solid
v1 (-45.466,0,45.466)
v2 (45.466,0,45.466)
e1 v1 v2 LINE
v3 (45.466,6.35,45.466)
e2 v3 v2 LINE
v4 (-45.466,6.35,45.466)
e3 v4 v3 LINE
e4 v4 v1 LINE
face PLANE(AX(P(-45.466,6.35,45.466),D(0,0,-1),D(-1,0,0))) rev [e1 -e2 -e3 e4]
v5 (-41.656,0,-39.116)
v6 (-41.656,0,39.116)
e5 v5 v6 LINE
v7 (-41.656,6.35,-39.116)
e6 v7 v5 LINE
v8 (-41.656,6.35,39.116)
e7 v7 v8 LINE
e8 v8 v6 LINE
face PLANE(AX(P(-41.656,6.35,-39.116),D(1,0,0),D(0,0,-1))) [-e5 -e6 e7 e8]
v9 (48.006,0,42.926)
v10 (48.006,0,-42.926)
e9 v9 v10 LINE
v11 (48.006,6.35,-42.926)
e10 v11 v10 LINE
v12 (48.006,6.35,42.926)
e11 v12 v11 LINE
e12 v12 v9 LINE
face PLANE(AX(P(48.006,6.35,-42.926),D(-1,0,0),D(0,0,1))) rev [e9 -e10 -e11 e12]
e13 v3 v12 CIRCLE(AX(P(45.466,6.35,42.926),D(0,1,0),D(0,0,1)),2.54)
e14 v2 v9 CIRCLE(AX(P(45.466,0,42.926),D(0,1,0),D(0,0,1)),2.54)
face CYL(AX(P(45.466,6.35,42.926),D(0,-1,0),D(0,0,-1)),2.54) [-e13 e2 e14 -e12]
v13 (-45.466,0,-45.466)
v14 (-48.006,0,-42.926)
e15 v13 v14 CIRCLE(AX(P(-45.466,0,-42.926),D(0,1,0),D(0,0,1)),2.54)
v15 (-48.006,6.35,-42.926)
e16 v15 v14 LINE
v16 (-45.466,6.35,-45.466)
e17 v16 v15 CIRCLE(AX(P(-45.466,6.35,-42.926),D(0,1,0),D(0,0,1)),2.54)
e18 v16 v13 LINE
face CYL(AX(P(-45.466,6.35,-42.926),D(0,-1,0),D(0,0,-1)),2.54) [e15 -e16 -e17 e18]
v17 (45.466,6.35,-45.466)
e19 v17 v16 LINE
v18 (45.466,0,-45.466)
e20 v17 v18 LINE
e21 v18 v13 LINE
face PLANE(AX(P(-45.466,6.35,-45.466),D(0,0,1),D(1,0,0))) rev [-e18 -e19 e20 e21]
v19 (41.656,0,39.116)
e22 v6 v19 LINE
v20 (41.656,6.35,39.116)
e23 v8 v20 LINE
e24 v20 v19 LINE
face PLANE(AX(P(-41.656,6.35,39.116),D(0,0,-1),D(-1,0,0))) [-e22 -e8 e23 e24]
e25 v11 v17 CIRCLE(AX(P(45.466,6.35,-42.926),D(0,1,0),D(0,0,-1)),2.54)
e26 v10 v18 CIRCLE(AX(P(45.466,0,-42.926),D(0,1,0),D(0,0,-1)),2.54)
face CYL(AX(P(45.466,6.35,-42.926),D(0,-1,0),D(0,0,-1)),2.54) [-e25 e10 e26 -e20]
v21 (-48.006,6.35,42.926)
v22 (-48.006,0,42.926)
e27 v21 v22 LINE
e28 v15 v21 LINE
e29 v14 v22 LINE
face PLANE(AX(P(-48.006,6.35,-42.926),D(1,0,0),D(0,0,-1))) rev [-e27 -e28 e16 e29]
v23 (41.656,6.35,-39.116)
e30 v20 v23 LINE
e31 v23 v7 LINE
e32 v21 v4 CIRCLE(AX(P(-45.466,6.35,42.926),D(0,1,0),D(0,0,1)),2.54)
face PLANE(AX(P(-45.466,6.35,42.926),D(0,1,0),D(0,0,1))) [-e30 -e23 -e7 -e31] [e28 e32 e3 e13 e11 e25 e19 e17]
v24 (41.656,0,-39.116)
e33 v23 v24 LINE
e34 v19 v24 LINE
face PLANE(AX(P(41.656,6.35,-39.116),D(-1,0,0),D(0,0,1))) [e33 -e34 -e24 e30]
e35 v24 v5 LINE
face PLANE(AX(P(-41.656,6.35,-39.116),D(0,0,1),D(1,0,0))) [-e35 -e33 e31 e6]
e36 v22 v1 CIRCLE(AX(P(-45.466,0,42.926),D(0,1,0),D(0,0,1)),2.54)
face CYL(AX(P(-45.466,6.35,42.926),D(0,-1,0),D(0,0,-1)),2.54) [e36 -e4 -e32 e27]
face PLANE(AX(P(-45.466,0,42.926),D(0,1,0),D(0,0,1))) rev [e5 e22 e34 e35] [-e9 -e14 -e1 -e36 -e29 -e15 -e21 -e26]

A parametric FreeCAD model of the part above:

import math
import FreeCAD as App
import Part
import Sketcher
from FreeCAD import Vector
Q = App.Units.Quantity


def add_polygon(sketch, points):
    """Adds a closed chain of lines whose ends are joined by coincident constraints."""
    first, n = sketch.GeometryCount, len(points)
    for a, b in zip(points, points[1:] + points[:1]):
        sketch.addGeometry(Part.LineSegment(App.Vector(*a, 0), App.Vector(*b, 0)), False)
    for i in range(n):
        sketch.addConstraint(Sketcher.Constraint("Coincident", first + i, 2, first + (i + 1) % n, 1))

doc = App.newDocument("Part")
body = doc.addObject("PartDesign::Body", "Body")

# Sketch on XZ plane
sketch1 = body.newObject("Sketcher::SketchObject", "Sketch")
sketch1.AttachmentSupport = (doc.getObject("XZ_Plane"), [""])
sketch1.MapMode = "FlatFace"
sketch1.addGeometry(Part.LineSegment(Vector(45.5, -45.5, 0), Vector(-45.5, -45.5, 0)), False)  # 0
sketch1.addGeometry(Part.ArcOfCircle(Part.Circle(Vector(-45.5, -42.9, 0), Vector(0, 0, 1), 2.5), math.radians(-180), math.radians(-90)), False)  # 1
sketch1.addGeometry(Part.LineSegment(Vector(-48, -42.9, 0), Vector(-48, 42.9, 0)), False)  # 2
sketch1.addGeometry(Part.ArcOfCircle(Part.Circle(Vector(-45.5, 42.9, 0), Vector(0, 0, 1), 2.5), math.radians(90), math.radians(180)), False)  # 3
sketch1.addGeometry(Part.LineSegment(Vector(-45.5, 45.5, 0), Vector(45.5, 45.5, 0)), False)  # 4
sketch1.addGeometry(Part.ArcOfCircle(Part.Circle(Vector(45.5, 42.9, 0), Vector(0, 0, 1), 2.5), math.radians(0), math.radians(90)), False)  # 5
sketch1.addGeometry(Part.LineSegment(Vector(48, 42.9, 0), Vector(48, -42.9, 0)), False)  # 6
sketch1.addGeometry(Part.ArcOfCircle(Part.Circle(Vector(45.5, -42.9, 0), Vector(0, 0, 1), 2.5), math.radians(-90), math.radians(0)), False)  # 7
add_polygon(sketch1, [(-41.7, 39.1), (-41.7, -39.1), (41.7, -39.1), (41.7, 39.1)])  # lines 8-11
sketch1.addConstraint(Sketcher.Constraint("Tangent", 0, 2, 1, 2))
sketch1.addConstraint(Sketcher.Constraint("Tangent", 1, 1, 2, 1))
sketch1.addConstraint(Sketcher.Constraint("Tangent", 2, 2, 3, 2))
sketch1.addConstraint(Sketcher.Constraint("Tangent", 3, 1, 4, 1))
sketch1.addConstraint(Sketcher.Constraint("Tangent", 4, 2, 5, 2))
sketch1.addConstraint(Sketcher.Constraint("Tangent", 5, 1, 6, 1))
sketch1.addConstraint(Sketcher.Constraint("Tangent", 6, 2, 7, 2))
sketch1.addConstraint(Sketcher.Constraint("Tangent", 7, 1, 0, 1))
sketch1.addConstraint(Sketcher.Constraint("Horizontal", 0))
sketch1.addConstraint(Sketcher.Constraint("Vertical", 2))
sketch1.addConstraint(Sketcher.Constraint("Horizontal", 4))
sketch1.addConstraint(Sketcher.Constraint("Vertical", 6))
sketch1.addConstraint(Sketcher.Constraint("Vertical", 8))
sketch1.addConstraint(Sketcher.Constraint("Horizontal", 9))
sketch1.addConstraint(Sketcher.Constraint("Vertical", 10))
sketch1.addConstraint(Sketcher.Constraint("Horizontal", 11))
sketch1.addConstraint(Sketcher.Constraint("Equal", 1, 3))
sketch1.addConstraint(Sketcher.Constraint("Equal", 3, 5))
sketch1.addConstraint(Sketcher.Constraint("Equal", 5, 7))
sketch1.addConstraint(Sketcher.Constraint("Symmetric", 1, 3, 5, 3, -1, 1))
sketch1.addConstraint(Sketcher.Constraint("Symmetric", 8, 2, 10, 2, -1, 1))
sketch1.addConstraint(Sketcher.Constraint("Radius", 1, Q("0.1 in")))
sketch1.addConstraint(Sketcher.Constraint("DistanceX", 0, 2, 0, 1, Q("3.58 in")))
sketch1.addConstraint(Sketcher.Constraint("DistanceX", 9, 1, 9, 2, Q("3.28 in")))
sketch1.addConstraint(Sketcher.Constraint("DistanceY", 2, 1, 2, 2, Q("3.38 in")))
sketch1.addConstraint(Sketcher.Constraint("DistanceY", 8, 2, 8, 1, Q("3.08 in")))
pad1 = body.newObject("PartDesign::Pad", "Pad")
pad1.Profile = sketch1
pad1.Length = Q("0.25 in")
pad1.Reversed = True

doc.recompute()
